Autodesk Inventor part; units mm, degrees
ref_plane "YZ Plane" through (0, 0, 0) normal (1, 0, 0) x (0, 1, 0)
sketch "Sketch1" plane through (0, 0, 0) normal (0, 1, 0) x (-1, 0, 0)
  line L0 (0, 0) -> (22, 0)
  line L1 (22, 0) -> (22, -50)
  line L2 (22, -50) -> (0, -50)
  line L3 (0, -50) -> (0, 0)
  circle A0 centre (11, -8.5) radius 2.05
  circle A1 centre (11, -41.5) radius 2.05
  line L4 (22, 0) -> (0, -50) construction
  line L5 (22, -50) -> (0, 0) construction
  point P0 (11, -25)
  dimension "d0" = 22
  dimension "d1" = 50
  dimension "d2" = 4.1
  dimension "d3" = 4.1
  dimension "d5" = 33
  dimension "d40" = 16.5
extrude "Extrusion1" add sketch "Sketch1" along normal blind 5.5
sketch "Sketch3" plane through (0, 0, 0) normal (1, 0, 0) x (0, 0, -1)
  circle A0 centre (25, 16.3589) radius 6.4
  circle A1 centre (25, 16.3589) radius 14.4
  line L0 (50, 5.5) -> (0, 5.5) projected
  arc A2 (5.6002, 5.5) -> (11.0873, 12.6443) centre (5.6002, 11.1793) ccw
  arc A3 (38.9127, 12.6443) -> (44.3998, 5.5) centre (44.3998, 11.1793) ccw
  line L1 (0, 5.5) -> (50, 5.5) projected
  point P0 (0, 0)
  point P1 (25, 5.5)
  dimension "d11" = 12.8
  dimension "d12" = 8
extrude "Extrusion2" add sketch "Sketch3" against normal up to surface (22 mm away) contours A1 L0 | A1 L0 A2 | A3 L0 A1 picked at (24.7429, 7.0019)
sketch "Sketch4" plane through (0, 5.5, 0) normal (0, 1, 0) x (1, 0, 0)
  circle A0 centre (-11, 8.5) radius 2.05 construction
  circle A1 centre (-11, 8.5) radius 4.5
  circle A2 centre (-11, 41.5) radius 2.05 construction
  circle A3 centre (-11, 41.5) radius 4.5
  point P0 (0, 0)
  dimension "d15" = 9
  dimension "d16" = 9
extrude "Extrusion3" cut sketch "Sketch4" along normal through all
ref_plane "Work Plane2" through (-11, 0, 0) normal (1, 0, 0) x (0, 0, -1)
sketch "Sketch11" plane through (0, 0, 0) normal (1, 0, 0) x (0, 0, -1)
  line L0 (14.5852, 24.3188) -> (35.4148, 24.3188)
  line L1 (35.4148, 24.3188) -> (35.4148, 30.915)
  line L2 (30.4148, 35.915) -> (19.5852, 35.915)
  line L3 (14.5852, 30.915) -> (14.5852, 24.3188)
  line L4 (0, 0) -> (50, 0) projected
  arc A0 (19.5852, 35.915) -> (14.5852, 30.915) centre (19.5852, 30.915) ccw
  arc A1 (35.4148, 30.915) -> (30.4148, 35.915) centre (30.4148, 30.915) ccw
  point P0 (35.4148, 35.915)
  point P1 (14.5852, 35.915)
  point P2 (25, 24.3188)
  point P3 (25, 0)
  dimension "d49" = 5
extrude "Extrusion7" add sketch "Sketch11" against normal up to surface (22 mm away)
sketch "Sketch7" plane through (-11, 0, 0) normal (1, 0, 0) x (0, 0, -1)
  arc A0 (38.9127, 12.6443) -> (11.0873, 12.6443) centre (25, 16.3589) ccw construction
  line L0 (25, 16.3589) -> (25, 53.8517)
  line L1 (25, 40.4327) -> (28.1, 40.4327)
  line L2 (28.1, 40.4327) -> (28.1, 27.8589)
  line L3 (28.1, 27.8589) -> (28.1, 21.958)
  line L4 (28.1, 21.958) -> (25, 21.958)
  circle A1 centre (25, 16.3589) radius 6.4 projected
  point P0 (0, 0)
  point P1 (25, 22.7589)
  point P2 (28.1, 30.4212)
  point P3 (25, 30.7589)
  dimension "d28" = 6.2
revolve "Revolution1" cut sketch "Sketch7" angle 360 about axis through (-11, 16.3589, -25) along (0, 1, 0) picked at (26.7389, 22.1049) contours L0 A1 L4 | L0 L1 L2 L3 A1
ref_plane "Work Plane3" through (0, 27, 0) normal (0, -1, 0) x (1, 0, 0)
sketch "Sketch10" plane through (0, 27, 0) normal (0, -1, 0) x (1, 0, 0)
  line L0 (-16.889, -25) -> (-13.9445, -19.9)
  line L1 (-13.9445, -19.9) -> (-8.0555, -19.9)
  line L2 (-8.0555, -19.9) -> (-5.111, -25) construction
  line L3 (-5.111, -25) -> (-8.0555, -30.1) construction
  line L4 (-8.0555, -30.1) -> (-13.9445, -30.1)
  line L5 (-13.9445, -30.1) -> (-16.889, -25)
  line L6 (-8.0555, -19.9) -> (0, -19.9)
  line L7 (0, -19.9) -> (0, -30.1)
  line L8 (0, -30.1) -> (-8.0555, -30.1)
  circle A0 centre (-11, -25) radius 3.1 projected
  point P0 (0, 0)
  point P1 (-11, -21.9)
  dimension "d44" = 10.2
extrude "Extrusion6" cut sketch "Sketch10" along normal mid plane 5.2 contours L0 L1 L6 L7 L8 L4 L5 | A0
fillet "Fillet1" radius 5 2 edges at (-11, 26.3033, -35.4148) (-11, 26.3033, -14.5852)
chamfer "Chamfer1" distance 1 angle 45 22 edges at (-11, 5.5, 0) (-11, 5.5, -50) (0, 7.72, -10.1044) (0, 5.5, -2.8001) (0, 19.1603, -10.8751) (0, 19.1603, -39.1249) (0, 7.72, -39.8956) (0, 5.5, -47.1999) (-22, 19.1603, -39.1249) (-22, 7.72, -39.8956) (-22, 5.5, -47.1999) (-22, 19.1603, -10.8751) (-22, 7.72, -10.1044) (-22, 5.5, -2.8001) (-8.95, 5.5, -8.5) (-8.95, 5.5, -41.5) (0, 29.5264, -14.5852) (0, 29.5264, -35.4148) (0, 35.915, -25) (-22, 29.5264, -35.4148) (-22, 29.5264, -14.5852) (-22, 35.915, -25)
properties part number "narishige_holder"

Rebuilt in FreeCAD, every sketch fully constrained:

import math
import FreeCAD as App
import Part
import Sketcher
from FreeCAD import Vector
Q = App.Units.Quantity


def edges_at(feature, points):
    """Names of the edges that pass closest to the given points."""
    edges = feature.Shape.Edges
    near = lambda p: min(range(len(edges)), key=lambda i: edges[i].distToShape(Part.Vertex(*p))[0])
    return sorted({f"Edge{near(p) + 1}" for p in points})

doc = App.newDocument("Part")
body = doc.addObject("PartDesign::Body", "Body")

# Sketch on XZ plane
sketch1 = body.newObject("Sketcher::SketchObject", "Sketch")
sketch1.AttachmentSupport = (doc.getObject("XZ_Plane"), [""])
sketch1.MapMode = "FlatFace"
sketch1.addGeometry([
    Part.LineSegment(Vector(-22, 0, 0), Vector(0, 0, 0)),  # 0
    Part.LineSegment(Vector(0, 0, 0), Vector(0, -50, 0)),  # 1
    Part.LineSegment(Vector(0, -50, 0), Vector(-22, -50, 0)),  # 2
    Part.LineSegment(Vector(-22, -50, 0), Vector(-22, 0, 0)),  # 3
    Part.Circle(Vector(-11, -41.5, 0), Vector(0, 0, 1), 2),  # 4
    Part.Circle(Vector(-11, -8.5, 0), Vector(0, 0, 1), 2),  # 5
], False)
sketch1.addConstraint([
    Sketcher.Constraint("Coincident", 0, 2, 1, 1),
    Sketcher.Constraint("Coincident", 1, 2, 2, 1),
    Sketcher.Constraint("Coincident", 2, 2, 3, 1),
    Sketcher.Constraint("Coincident", 3, 2, 0, 1),
    Sketcher.Constraint("Horizontal", 0),
    Sketcher.Constraint("Vertical", 1),
    Sketcher.Constraint("Horizontal", 2),
    Sketcher.Constraint("Vertical", 3),
    Sketcher.Constraint("Coincident", 0, 2, -1, 1),
    Sketcher.Constraint("Equal", 4, 5),
    Sketcher.Constraint("Vertical", 4, 3, 5, 3),
    Sketcher.Constraint("Diameter", 4, 4.1),
    Sketcher.Constraint("DistanceX", 0, 1, 0, 2, 22.0),
    Sketcher.Constraint("DistanceY", 1, 2, 1, 1, 50.0),
    Sketcher.Constraint("DistanceY", 4, 3, 5, 3, 33.0),
    Sketcher.Constraint("DistanceX", 4, 3, -1, 1, 11.0),
    Sketcher.Constraint("DistanceY", 4, 3, -1, 1, 41.5),
])
pad1 = body.newObject("PartDesign::Pad", "Pad")
pad1.Profile = sketch1
pad1.Length = 5.5
pad1.Reversed = True

# Sketch on YZ plane
sketch2 = body.newObject("Sketcher::SketchObject", "Sketch001")
sketch2.AttachmentSupport = (doc.getObject("YZ_Plane"), [""])
sketch2.MapMode = "FlatFace"
sketch2.addGeometry([
    Part.ArcOfCircle(Part.Circle(Vector(16, -25, 0), Vector(0, 0, 1), 14), math.radians(-105), math.radians(105)),  # 0
    Part.ArcOfCircle(Part.Circle(Vector(11, -6, 0), Vector(0, 0, 1), 6), math.radians(180), math.radians(285)),  # 1
    Part.LineSegment(Vector(6, -6, 0), Vector(6, -44, 0)),  # 2
    Part.ArcOfCircle(Part.Circle(Vector(11, -44, 0), Vector(0, 0, 1), 6), math.radians(75), math.radians(180)),  # 3
    Part.Circle(Vector(16, -25, 0), Vector(0, 0, 1), 6),  # 4
], False)
sketch2.addConstraint([
    Sketcher.Constraint("Tangent", 0, 2, 1, 2),
    Sketcher.Constraint("Tangent", 1, 1, 2, 1),
    Sketcher.Constraint("Tangent", 2, 2, 3, 2),
    Sketcher.Constraint("Tangent", 3, 1, 0, 1),
    Sketcher.Constraint("Vertical", 2),
    Sketcher.Constraint("Coincident", 4, 3, 0, 3),
    Sketcher.Constraint("Equal", 1, 3),
    Sketcher.Constraint("Diameter", 4, 12.8),
    Sketcher.Constraint("Radius", 0, 14.4),
    Sketcher.Constraint("DistanceY", 0, 3, -1, 1, 25.0),
    Sketcher.Constraint("DistanceX", -1, 1, 1, 1, 5.5),
    Sketcher.Constraint("Radius", 1, 5.6793),
    Sketcher.Constraint("DistanceY", 2, 2, 2, 1, 38.7996),
])
pad2 = body.newObject("PartDesign::Pad", "Pad001")
pad2.Profile = sketch2
pad2.Length = 22
pad2.Reversed = True

# Sketch on XZ plane
sketch3 = body.newObject("Sketcher::SketchObject", "Sketch002")
sketch3.AttachmentSupport = (doc.getObject("XZ_Plane"), [""])
sketch3.MapMode = "FlatFace"
sketch3.AttachmentOffset = App.Placement(Vector(0, 0, -5.5), App.Rotation())
sketch3.addGeometry([
    Part.Circle(Vector(-11, -8.5, 0), Vector(0, 0, 1), 4.5),
    Part.Circle(Vector(-11, -41.5, 0), Vector(0, 0, 1), 4.5),
], False)
sketch3.addConstraint([
    Sketcher.Constraint("Equal", 0, 1),
    Sketcher.Constraint("Vertical", 0, 3, 1, 3),
    Sketcher.Constraint("Diameter", 0, 9.0),
    Sketcher.Constraint("DistanceX", 0, 3, -1, 1, 11.0),
    Sketcher.Constraint("DistanceY", 1, 3, 0, 3, 33.0),
    Sketcher.Constraint("DistanceY", 0, 3, -1, 1, 8.5),
])
pocket1 = body.newObject("PartDesign::Pocket", "Pocket")
pocket1.Profile = sketch3
pocket1.Type = "ThroughAll"

# Sketch on YZ plane
sketch4 = body.newObject("Sketcher::SketchObject", "Sketch003")
sketch4.AttachmentSupport = (doc.getObject("YZ_Plane"), [""])
sketch4.MapMode = "FlatFace"
sketch4.addGeometry([
    Part.LineSegment(Vector(31, -15, 0), Vector(24, -15, 0)),  # 0
    Part.LineSegment(Vector(24, -15, 0), Vector(24, -35, 0)),  # 1
    Part.LineSegment(Vector(24, -35, 0), Vector(31, -35, 0)),  # 2
    Part.ArcOfCircle(Part.Circle(Vector(31, -30, 0), Vector(0, 0, 1), 5), math.radians(-90), math.radians(0)),  # 3
    Part.LineSegment(Vector(36, -30, 0), Vector(36, -20, 0)),  # 4
    Part.ArcOfCircle(Part.Circle(Vector(31, -20, 0), Vector(0, 0, 1), 5), math.radians(0), math.radians(90)),  # 5
], False)
sketch4.addConstraint([
    Sketcher.Constraint("Coincident", 0, 2, 1, 1),
    Sketcher.Constraint("Coincident", 1, 2, 2, 1),
    Sketcher.Constraint("Tangent", 2, 2, 3, 1),
    Sketcher.Constraint("Tangent", 3, 2, 4, 1),
    Sketcher.Constraint("Tangent", 4, 2, 5, 1),
    Sketcher.Constraint("Tangent", 5, 2, 0, 1),
    Sketcher.Constraint("Horizontal", 0),
    Sketcher.Constraint("Vertical", 1),
    Sketcher.Constraint("Horizontal", 2),
    Sketcher.Constraint("Vertical", 4),
    Sketcher.Constraint("Equal", 3, 5),
    Sketcher.Constraint("Radius", 3, 5.0),
    Sketcher.Constraint("DistanceX", 0, 2, 0, 1, 6.5962),
    Sketcher.Constraint("DistanceY", 1, 2, 1, 1, 20.8296),
    Sketcher.Constraint("DistanceX", -1, 1, 3, 3, 30.915),
    Sketcher.Constraint("DistanceY", 3, 3, -1, 1, 30.4148),
])
pad3 = body.newObject("PartDesign::Pad", "Pad002")
pad3.Profile = sketch4
pad3.Length = 22
pad3.Reversed = True

# Sketch on YZ plane
sketch5 = body.newObject("Sketcher::SketchObject", "Sketch004")
sketch5.AttachmentSupport = (doc.getObject("YZ_Plane"), [""])
sketch5.MapMode = "FlatFace"
sketch5.AttachmentOffset = App.Placement(Vector(0, 0, -11), App.Rotation())
sketch5.addGeometry([
    Part.LineSegment(Vector(22, -25, 0), Vector(22, -28.1, 0)),
    Part.LineSegment(Vector(22, -28.1, 0), Vector(40.4, -28.1, 0)),
    Part.LineSegment(Vector(40.4, -28.1, 0), Vector(40.4, -25, 0)),
    Part.LineSegment(Vector(40.4, -25, 0), Vector(22, -25, 0)),
], False)
sketch5.addGeometry(Part.LineSegment(Vector(22, -25, 0), Vector(40.4, -25, 0)), True)  # axis
sketch5.addConstraint([
    Sketcher.Constraint("Coincident", 0, 2, 1, 1),
    Sketcher.Constraint("Coincident", 1, 2, 2, 1),
    Sketcher.Constraint("Coincident", 2, 2, 3, 1),
    Sketcher.Constraint("Coincident", 3, 2, 0, 1),
    Sketcher.Constraint("Vertical", 0),
    Sketcher.Constraint("Horizontal", 1),
    Sketcher.Constraint("Vertical", 2),
    Sketcher.Constraint("Horizontal", 3),
    Sketcher.Constraint("Horizontal", 4),
    Sketcher.Constraint("Coincident", 4, 1, 3, 2),
    Sketcher.Constraint("Vertical", 1, 2, 4, 2),
    Sketcher.Constraint("DistanceY", 0, 2, 0, 1, 3.1),
    Sketcher.Constraint("DistanceY", 2, 2, -1, 1, 25.0),
    Sketcher.Constraint("DistanceX", 1, 1, 1, 2, 18.4747),
    Sketcher.Constraint("DistanceX", -1, 1, 0, 2, 21.958),
])
groove = body.newObject("PartDesign::Groove", "Groove")
groove.Profile = sketch5
groove.ReferenceAxis = (sketch5, ["Axis0"])
groove.Angle = 360

# Sketch on XZ plane
sketch6 = body.newObject("Sketcher::SketchObject", "Sketch005")
sketch6.AttachmentSupport = (doc.getObject("XZ_Plane"), [""])
sketch6.MapMode = "FlatFace"
sketch6.AttachmentOffset = App.Placement(Vector(0, 0, -27), App.Rotation())
sketch6.addGeometry([
    Part.LineSegment(Vector(-14, -20, 0), Vector(-17, -25, 0)),  # 0
    Part.LineSegment(Vector(-17, -25, 0), Vector(-14, -30, 0)),  # 1
    Part.LineSegment(Vector(-14, -30, 0), Vector(0, -30, 0)),  # 2
    Part.LineSegment(Vector(0, -30, 0), Vector(0, -20, 0)),  # 3
    Part.LineSegment(Vector(0, -20, 0), Vector(-14, -20, 0)),  # 4
], False)
sketch6.addConstraint([
    Sketcher.Constraint("Coincident", 0, 2, 1, 1),
    Sketcher.Constraint("Coincident", 1, 2, 2, 1),
    Sketcher.Constraint("Coincident", 2, 2, 3, 1),
    Sketcher.Constraint("Coincident", 3, 2, 4, 1),
    Sketcher.Constraint("Coincident", 4, 2, 0, 1),
    Sketcher.Constraint("Horizontal", 2),
    Sketcher.Constraint("Vertical", 3),
    Sketcher.Constraint("Horizontal", 4),
    Sketcher.Constraint("PointOnObject", 2, 2, -2),
    Sketcher.Constraint("Vertical", 1, 2, 4, 2),
    Sketcher.Constraint("Equal", 0, 1),
    Sketcher.Constraint("DistanceY", 3, 1, 3, 2, 10.2),
    Sketcher.Constraint("Angle", 0, Q("-120 deg")),
    Sketcher.Constraint("DistanceY", 0, 2, -1, 1, 25.0),
    Sketcher.Constraint("DistanceX", 2, 1, 2, 2, 13.9445),
])
pocket2 = body.newObject("PartDesign::Pocket", "Pocket001")
pocket2.Profile = sketch6
pocket2.Length = 5.2
pocket2.Midplane = True
doc.recompute()

fillet = body.newObject("PartDesign::Fillet", "Fillet")
fillet.Base = (pocket2, edges_at(pocket2, [(-11, 26.303, -35.415), (-11, 26.303, -14.585)]))
fillet.Radius = 5
doc.recompute()

chamfer = body.newObject("PartDesign::Chamfer", "Chamfer")
chamfer.Base = (fillet, edges_at(fillet, [
    (-11, 5.5, 0),
    (-11, 5.5, -50),
    (0, 7.72, -10.104),
    (0, 5.5, -2.8),
    (0, 19.16, -10.875),
    (0, 19.16, -39.125),
    (0, 7.72, -39.896),
    (0, 5.5, -47.2),
    (-22, 19.16, -39.125),
    (-22, 7.72, -39.896),
    (-22, 5.5, -47.2),
    (-22, 19.16, -10.875),
    (-22, 7.72, -10.104),
    (-22, 5.5, -2.8),
    (-8.95, 5.5, -8.5),
    (-8.95, 5.5, -41.5),
    (0, 29.526, -14.585),
    (0, 29.526, -35.415),
    (0, 35.915, -25),
    (-22, 29.526, -35.415),
    (-22, 29.526, -14.585),
    (-22, 35.915, -25),
]))
chamfer.Size = 1

doc.recompute()
